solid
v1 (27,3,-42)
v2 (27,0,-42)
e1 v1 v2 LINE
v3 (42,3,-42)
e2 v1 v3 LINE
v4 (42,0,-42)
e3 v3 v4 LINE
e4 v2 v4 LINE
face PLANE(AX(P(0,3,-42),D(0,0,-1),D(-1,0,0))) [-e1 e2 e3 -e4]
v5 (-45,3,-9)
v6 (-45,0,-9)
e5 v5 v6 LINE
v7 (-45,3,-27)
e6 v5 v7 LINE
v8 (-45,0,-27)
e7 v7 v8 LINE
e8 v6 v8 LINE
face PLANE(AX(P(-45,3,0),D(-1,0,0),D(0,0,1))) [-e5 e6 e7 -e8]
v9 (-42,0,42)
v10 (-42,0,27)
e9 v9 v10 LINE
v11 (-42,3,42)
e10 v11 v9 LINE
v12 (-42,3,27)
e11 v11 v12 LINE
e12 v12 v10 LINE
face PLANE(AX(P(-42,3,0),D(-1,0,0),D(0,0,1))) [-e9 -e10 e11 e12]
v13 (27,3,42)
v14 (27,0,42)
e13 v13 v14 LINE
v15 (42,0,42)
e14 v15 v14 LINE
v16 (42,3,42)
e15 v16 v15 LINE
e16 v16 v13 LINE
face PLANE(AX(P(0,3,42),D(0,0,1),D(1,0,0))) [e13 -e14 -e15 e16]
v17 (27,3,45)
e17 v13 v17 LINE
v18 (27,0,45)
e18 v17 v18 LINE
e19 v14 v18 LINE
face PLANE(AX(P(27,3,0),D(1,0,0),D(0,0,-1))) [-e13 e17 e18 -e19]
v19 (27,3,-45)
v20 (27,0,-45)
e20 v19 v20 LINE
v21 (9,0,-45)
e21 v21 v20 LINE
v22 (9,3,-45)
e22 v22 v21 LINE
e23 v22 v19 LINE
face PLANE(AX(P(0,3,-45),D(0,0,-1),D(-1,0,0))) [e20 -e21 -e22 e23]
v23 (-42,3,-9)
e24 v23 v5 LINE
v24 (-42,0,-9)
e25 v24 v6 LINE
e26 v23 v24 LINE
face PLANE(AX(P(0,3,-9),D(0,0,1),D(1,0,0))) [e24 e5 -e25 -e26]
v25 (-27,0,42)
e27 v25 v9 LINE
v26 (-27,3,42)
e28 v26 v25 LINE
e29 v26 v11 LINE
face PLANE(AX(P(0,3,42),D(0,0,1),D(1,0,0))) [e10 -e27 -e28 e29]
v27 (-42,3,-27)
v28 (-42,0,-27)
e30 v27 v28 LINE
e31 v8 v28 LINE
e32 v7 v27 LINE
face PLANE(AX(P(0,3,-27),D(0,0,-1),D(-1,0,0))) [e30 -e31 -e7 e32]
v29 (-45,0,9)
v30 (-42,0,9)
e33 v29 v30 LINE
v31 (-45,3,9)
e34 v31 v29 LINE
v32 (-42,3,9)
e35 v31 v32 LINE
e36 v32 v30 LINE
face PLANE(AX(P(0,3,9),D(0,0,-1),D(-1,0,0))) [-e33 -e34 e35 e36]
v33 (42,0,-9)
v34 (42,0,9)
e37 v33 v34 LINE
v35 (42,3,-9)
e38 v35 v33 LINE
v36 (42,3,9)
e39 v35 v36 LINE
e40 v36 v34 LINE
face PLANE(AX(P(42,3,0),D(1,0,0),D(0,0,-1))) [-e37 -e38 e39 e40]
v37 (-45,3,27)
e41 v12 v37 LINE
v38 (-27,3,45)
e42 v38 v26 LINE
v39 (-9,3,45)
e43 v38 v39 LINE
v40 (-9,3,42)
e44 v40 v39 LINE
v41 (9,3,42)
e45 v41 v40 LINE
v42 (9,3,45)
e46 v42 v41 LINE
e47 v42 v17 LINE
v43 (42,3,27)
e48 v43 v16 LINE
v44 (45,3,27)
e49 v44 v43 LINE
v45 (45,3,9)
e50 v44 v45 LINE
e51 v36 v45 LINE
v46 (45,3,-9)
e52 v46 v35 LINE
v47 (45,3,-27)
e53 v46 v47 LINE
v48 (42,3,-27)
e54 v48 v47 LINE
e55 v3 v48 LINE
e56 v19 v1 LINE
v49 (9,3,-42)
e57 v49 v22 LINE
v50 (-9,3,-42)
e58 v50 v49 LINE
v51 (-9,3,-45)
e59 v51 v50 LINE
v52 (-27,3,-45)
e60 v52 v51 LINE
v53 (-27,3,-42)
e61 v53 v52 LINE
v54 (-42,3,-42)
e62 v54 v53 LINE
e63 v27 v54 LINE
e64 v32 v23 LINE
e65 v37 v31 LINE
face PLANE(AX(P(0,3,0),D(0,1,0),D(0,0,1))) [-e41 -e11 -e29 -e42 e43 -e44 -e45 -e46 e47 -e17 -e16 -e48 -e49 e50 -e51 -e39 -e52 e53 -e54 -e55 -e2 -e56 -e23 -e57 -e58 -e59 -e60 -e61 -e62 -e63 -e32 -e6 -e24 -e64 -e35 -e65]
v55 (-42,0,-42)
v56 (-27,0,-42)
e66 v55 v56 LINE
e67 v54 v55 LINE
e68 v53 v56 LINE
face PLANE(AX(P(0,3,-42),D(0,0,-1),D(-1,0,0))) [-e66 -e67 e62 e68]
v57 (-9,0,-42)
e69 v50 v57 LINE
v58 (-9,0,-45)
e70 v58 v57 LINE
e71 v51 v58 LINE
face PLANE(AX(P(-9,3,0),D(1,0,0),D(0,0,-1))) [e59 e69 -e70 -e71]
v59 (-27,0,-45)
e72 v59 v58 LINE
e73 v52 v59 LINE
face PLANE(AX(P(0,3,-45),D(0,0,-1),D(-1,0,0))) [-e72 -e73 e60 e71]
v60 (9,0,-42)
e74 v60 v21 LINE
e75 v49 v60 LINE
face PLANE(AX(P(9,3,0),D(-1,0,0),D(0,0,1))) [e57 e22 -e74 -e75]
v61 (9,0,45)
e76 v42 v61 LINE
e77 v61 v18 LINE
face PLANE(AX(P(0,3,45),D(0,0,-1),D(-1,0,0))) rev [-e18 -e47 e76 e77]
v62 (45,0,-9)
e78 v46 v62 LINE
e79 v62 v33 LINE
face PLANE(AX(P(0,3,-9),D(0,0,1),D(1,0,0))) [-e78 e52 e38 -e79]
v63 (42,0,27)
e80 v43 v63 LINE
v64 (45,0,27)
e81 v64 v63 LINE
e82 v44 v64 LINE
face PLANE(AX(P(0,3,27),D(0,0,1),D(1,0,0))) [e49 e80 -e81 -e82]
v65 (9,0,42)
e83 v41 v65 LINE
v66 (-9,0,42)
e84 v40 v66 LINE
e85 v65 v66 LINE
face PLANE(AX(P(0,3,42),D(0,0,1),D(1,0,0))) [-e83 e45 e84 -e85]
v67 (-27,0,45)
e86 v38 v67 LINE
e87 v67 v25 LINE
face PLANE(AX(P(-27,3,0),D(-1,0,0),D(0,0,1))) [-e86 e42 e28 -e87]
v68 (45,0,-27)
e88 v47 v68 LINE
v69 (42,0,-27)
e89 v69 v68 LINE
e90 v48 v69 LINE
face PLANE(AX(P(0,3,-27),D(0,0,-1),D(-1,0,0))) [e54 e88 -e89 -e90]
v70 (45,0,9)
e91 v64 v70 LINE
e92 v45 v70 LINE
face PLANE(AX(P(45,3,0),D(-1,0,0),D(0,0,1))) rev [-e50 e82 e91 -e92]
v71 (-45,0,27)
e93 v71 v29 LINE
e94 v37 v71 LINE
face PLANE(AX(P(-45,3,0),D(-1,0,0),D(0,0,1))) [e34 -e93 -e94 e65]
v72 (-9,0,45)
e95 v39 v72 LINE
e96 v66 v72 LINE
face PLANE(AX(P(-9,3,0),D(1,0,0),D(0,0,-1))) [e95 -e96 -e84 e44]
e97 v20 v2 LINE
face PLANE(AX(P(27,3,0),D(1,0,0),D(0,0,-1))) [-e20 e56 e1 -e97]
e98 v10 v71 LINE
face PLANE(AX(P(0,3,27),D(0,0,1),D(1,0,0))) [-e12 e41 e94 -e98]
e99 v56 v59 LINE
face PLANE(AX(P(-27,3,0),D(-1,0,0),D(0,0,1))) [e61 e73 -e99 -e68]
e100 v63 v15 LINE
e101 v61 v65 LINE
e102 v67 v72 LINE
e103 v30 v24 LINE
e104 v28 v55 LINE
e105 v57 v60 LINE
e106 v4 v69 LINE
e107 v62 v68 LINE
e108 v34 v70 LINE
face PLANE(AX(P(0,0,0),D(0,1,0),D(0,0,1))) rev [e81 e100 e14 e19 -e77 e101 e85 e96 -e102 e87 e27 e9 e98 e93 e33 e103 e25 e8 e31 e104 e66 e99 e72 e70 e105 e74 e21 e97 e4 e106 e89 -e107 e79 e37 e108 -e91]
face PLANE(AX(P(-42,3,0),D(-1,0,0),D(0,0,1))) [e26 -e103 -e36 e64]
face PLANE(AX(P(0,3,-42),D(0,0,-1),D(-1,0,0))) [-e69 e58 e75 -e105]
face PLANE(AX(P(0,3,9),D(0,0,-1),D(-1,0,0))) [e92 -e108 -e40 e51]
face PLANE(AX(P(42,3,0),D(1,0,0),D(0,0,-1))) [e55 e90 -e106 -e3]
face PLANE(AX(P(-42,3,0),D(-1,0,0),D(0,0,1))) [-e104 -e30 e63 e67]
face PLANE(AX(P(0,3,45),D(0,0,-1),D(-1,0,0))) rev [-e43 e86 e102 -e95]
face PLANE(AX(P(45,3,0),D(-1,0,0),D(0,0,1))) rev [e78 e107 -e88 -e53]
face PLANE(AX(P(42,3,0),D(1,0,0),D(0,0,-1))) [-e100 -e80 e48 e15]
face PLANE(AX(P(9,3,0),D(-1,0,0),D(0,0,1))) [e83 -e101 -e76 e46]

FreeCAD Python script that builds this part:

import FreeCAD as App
import Part
import Sketcher


def add_polygon(sketch, points):
    """Adds a closed chain of lines whose ends are joined by coincident constraints."""
    first, n = sketch.GeometryCount, len(points)
    for a, b in zip(points, points[1:] + points[:1]):
        sketch.addGeometry(Part.LineSegment(App.Vector(*a, 0), App.Vector(*b, 0)), False)
    for i in range(n):
        sketch.addConstraint(Sketcher.Constraint("Coincident", first + i, 2, first + (i + 1) % n, 1))

doc = App.newDocument("Part")
body = doc.addObject("PartDesign::Body", "Body")

sketch1 = doc.addObject("Sketcher::SketchObject", "Sketch")
body.addObject(sketch1)
sketch1.AttachmentSupport = (doc.XZ_Plane, [""])
sketch1.MapMode = "FlatFace"
add_polygon(sketch1, [(-27, 42), (-27, 45), (-9, 45), (-9, 42), (9, 42), (9, 45), (27, 45), (27, 42), (42, 42), (42, 27), (45, 27), (45, 9), (42, 9), (42, -9), (45, -9), (45, -27), (42, -27), (42, -42), (27, -42), (27, -45), (9, -45), (9, -42), (-9, -42), (-9, -45), (-27, -45), (-27, -42), (-42, -42), (-42, -27), (-45, -27), (-45, -9), (-42, -9), (-42, 9), (-45, 9), (-45, 27), (-42, 27), (-42, 42)])
sketch1.addConstraint(Sketcher.Constraint("Vertical", 0))
sketch1.addConstraint(Sketcher.Constraint("Horizontal", 1))
sketch1.addConstraint(Sketcher.Constraint("Vertical", 2))
sketch1.addConstraint(Sketcher.Constraint("Horizontal", 3))
sketch1.addConstraint(Sketcher.Constraint("Vertical", 4))
sketch1.addConstraint(Sketcher.Constraint("Horizontal", 5))
sketch1.addConstraint(Sketcher.Constraint("Vertical", 6))
sketch1.addConstraint(Sketcher.Constraint("Horizontal", 7))
sketch1.addConstraint(Sketcher.Constraint("Vertical", 8))
sketch1.addConstraint(Sketcher.Constraint("Horizontal", 9))
sketch1.addConstraint(Sketcher.Constraint("Vertical", 10))
sketch1.addConstraint(Sketcher.Constraint("Horizontal", 11))
sketch1.addConstraint(Sketcher.Constraint("Vertical", 12))
sketch1.addConstraint(Sketcher.Constraint("Horizontal", 13))
sketch1.addConstraint(Sketcher.Constraint("Vertical", 14))
sketch1.addConstraint(Sketcher.Constraint("Horizontal", 15))
sketch1.addConstraint(Sketcher.Constraint("Vertical", 16))
sketch1.addConstraint(Sketcher.Constraint("Horizontal", 17))
sketch1.addConstraint(Sketcher.Constraint("Vertical", 18))
sketch1.addConstraint(Sketcher.Constraint("Horizontal", 19))
sketch1.addConstraint(Sketcher.Constraint("Vertical", 20))
sketch1.addConstraint(Sketcher.Constraint("Horizontal", 21))
sketch1.addConstraint(Sketcher.Constraint("Vertical", 22))
sketch1.addConstraint(Sketcher.Constraint("Horizontal", 23))
sketch1.addConstraint(Sketcher.Constraint("Vertical", 24))
sketch1.addConstraint(Sketcher.Constraint("Horizontal", 25))
sketch1.addConstraint(Sketcher.Constraint("Vertical", 26))
sketch1.addConstraint(Sketcher.Constraint("Horizontal", 27))
sketch1.addConstraint(Sketcher.Constraint("Vertical", 28))
sketch1.addConstraint(Sketcher.Constraint("Horizontal", 29))
sketch1.addConstraint(Sketcher.Constraint("Vertical", 30))
sketch1.addConstraint(Sketcher.Constraint("Horizontal", 31))
sketch1.addConstraint(Sketcher.Constraint("Vertical", 32))
sketch1.addConstraint(Sketcher.Constraint("Horizontal", 33))
sketch1.addConstraint(Sketcher.Constraint("Vertical", 34))
sketch1.addConstraint(Sketcher.Constraint("Horizontal", 35))
sketch1.addConstraint(Sketcher.Constraint("Symmetric", 0, 2, 18, 2, -1, 1))
sketch1.addConstraint(Sketcher.Constraint("Symmetric", 2, 2, 20, 2, -1, 1))
sketch1.addConstraint(Sketcher.Constraint("Symmetric", 4, 2, 22, 2, -1, 1))
sketch1.addConstraint(Sketcher.Constraint("Symmetric", 6, 2, 24, 2, -1, 1))
sketch1.addConstraint(Sketcher.Constraint("Symmetric", 8, 2, 26, 2, -1, 1))
sketch1.addConstraint(Sketcher.Constraint("Symmetric", 10, 2, 28, 2, -1, 1))
sketch1.addConstraint(Sketcher.Constraint("Symmetric", 12, 2, 30, 2, -1, 1))
sketch1.addConstraint(Sketcher.Constraint("Symmetric", 14, 2, 32, 2, -1, 1))
sketch1.addConstraint(Sketcher.Constraint("Symmetric", 16, 2, 34, 2, -1, 1))
sketch1.addConstraint(Sketcher.Constraint("Symmetric", 1, 2, 4, 2, -2))
sketch1.addConstraint(Sketcher.Constraint("Symmetric", 17, 2, 24, 2, -2))
sketch1.addConstraint(Sketcher.Constraint("Symmetric", 15, 2, 26, 2, -2))
sketch1.addConstraint(Sketcher.Constraint("Symmetric", 13, 2, 28, 2, -2))
sketch1.addConstraint(Sketcher.Constraint("Horizontal", 3, 2, 6, 2))
sketch1.addConstraint(Sketcher.Constraint("Vertical", 8, 2, 11, 2))
sketch1.addConstraint(Sketcher.Constraint("Equal", 1, 3))
sketch1.addConstraint(Sketcher.Constraint("Equal", 33, 0))
sketch1.addConstraint(Sketcher.Constraint("Equal", 35, 8))
sketch1.addConstraint(Sketcher.Constraint("Equal", 23, 10))
sketch1.addConstraint(Sketcher.Constraint("Equal", 10, 12))
sketch1.addConstraint(Sketcher.Constraint("DistanceX", 1, 1, 1, 2, 18.0))
sketch1.addConstraint(Sketcher.Constraint("DistanceX", 7, 1, 7, 2, 15.0))
sketch1.addConstraint(Sketcher.Constraint("DistanceX", 9, 1, 9, 2, 3.0))
pad1 = doc.addObject("PartDesign::Pad", "Pad")
body.addObject(pad1)
pad1.Profile = sketch1
pad1.Length = 3
pad1.Reversed = True

doc.recompute()
